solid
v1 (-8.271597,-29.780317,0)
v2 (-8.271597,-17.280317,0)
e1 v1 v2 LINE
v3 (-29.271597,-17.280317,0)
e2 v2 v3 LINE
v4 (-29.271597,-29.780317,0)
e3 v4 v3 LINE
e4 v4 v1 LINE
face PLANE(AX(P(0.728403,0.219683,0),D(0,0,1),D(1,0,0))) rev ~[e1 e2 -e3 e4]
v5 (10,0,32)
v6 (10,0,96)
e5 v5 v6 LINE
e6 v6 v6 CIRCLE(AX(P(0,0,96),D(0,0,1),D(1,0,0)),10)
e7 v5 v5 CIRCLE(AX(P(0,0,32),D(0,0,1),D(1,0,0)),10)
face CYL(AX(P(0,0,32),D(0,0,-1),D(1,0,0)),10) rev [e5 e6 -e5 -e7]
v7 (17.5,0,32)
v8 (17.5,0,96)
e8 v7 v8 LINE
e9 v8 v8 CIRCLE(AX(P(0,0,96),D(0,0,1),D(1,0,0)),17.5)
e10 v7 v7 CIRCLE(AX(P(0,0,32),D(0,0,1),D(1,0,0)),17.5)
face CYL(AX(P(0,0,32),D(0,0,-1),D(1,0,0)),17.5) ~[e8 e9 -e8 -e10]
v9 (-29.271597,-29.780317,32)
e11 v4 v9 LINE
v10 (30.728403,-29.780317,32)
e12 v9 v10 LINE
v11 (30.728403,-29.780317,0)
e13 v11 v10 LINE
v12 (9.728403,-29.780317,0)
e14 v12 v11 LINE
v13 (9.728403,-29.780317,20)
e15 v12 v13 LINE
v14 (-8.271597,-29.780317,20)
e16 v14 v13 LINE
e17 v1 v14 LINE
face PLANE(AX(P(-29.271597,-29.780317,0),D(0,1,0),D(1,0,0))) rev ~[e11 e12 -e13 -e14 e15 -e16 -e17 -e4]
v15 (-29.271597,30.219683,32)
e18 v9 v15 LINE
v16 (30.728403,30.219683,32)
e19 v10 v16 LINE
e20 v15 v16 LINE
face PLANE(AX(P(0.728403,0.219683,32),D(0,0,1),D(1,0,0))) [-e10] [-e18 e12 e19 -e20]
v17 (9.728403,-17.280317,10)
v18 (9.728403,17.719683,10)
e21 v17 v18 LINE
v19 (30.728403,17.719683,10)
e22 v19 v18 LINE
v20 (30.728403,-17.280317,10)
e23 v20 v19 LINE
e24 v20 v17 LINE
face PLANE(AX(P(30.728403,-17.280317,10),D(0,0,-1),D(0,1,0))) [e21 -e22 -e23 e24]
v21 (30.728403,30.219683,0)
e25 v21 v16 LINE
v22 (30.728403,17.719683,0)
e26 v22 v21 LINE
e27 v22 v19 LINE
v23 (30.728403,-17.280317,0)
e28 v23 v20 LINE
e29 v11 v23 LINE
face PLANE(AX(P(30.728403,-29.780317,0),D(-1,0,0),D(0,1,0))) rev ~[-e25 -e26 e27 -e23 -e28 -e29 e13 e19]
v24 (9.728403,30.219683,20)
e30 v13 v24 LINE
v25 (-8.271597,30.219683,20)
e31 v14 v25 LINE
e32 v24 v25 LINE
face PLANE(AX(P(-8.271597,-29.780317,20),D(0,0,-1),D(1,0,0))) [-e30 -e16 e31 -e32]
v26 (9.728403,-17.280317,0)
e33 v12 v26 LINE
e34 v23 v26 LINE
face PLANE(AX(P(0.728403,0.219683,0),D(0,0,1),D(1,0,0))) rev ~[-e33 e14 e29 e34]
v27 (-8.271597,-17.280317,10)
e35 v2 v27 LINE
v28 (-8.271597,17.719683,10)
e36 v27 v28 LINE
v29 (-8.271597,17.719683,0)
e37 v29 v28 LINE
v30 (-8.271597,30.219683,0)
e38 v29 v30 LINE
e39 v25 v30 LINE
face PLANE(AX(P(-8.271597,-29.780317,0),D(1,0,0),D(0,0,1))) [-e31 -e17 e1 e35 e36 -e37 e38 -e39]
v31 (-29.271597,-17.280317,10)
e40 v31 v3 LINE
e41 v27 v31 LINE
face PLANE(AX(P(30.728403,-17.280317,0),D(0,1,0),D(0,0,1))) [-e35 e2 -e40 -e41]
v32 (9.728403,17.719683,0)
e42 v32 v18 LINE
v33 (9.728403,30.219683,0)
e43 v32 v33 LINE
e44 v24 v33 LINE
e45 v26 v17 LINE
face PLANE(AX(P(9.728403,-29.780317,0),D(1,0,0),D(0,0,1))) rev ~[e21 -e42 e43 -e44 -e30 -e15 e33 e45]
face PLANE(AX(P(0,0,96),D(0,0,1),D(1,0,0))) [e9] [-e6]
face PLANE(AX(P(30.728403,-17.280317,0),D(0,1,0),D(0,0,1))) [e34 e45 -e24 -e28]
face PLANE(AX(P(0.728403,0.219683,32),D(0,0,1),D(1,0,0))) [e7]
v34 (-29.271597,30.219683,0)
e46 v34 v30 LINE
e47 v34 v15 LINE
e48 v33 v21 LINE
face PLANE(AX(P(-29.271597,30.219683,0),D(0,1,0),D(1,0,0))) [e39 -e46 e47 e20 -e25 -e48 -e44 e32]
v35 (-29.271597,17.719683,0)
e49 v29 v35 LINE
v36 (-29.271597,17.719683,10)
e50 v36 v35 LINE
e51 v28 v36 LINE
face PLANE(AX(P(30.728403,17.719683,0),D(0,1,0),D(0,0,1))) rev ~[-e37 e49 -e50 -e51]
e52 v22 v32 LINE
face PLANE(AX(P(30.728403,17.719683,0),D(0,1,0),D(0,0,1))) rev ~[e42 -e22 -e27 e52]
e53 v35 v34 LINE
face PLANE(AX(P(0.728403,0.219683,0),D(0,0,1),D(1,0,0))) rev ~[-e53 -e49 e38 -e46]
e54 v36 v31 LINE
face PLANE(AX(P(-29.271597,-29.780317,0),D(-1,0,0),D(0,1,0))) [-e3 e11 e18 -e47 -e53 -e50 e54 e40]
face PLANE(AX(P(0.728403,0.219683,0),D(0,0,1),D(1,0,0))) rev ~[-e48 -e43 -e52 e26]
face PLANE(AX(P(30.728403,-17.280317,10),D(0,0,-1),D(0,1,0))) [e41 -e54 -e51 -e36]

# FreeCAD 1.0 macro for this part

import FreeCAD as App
import Part
import Sketcher
Q = App.Units.Quantity


def add_polygon(sketch, points):
    """Adds a closed chain of lines whose ends are joined by coincident constraints."""
    first, n = sketch.GeometryCount, len(points)
    for a, b in zip(points, points[1:] + points[:1]):
        sketch.addGeometry(Part.LineSegment(App.Vector(*a, 0), App.Vector(*b, 0)), False)
    for i in range(n):
        sketch.addConstraint(Sketcher.Constraint("Coincident", first + i, 2, first + (i + 1) % n, 1))

doc = App.newDocument("Part")
body = doc.addObject("PartDesign::Body", "Body")

# Sketch on XY plane
sketch1 = doc.addObject("Sketcher::SketchObject", "Sketch")
body.addObject(sketch1)
sketch1.AttachmentSupport = (doc.XY_Plane, [""])
sketch1.MapMode = "FlatFace"
add_polygon(sketch1, [(-29.271597, 30.219683), (-29.271597, -29.780317), (30.728403, -29.780317), (30.728403, 30.219683)])  # lines 0-3
sketch1.addConstraint(Sketcher.Constraint("Vertical", 0))
sketch1.addConstraint(Sketcher.Constraint("Horizontal", 1))
sketch1.addConstraint(Sketcher.Constraint("Vertical", 2))
sketch1.addConstraint(Sketcher.Constraint("Horizontal", 3))
sketch1.addConstraint(Sketcher.Constraint("Equal", 3, 0))
sketch1.addConstraint(Sketcher.Constraint("DistanceX", 1, 1, 1, 2, Q("60 mm")))
sketch1.addConstraint(Sketcher.Constraint("DistanceX", 0, 2, -1, 1, Q("29.271597 mm")))
sketch1.addConstraint(Sketcher.Constraint("DistanceY", 0, 2, -1, 1, Q("29.780317 mm")))
pad1 = doc.addObject("PartDesign::Pad", "Pad")
body.addObject(pad1)
pad1.Profile = sketch1
pad1.Length = 32

# Sketch on XZ plane
sketch2 = doc.addObject("Sketcher::SketchObject", "Sketch001")
body.addObject(sketch2)
sketch2.AttachmentSupport = (doc.XZ_Plane, [""])
sketch2.MapMode = "FlatFace"
sketch2.AttachmentOffset = App.Placement(App.Vector(0, 0, 29.780317), App.Rotation())
add_polygon(sketch2, [(-8.271597, 20), (-8.271597, 0), (9.728403, 0), (9.728403, 20)])  # lines 0-3
sketch2.addConstraint(Sketcher.Constraint("Vertical", 0))
sketch2.addConstraint(Sketcher.Constraint("Horizontal", 1))
sketch2.addConstraint(Sketcher.Constraint("Vertical", 2))
sketch2.addConstraint(Sketcher.Constraint("Horizontal", 3))
sketch2.addConstraint(Sketcher.Constraint("PointOnObject", 0, 2, -1))
sketch2.addConstraint(Sketcher.Constraint("DistanceX", 1, 1, 1, 2, Q("18 mm")))
sketch2.addConstraint(Sketcher.Constraint("DistanceY", 0, 2, 0, 1, Q("20 mm")))
sketch2.addConstraint(Sketcher.Constraint("DistanceX", 0, 2, -1, 1, Q("8.271597 mm")))
pocket1 = doc.addObject("PartDesign::Pocket", "Pocket")
body.addObject(pocket1)
pocket1.Profile = sketch2
pocket1.Type = "ThroughAll"

# Sketch on YZ plane
sketch3 = doc.addObject("Sketcher::SketchObject", "Sketch002")
body.addObject(sketch3)
sketch3.AttachmentSupport = (doc.YZ_Plane, [""])
sketch3.MapMode = "FlatFace"
sketch3.AttachmentOffset = App.Placement(App.Vector(0, 0, 30.728403), App.Rotation())
add_polygon(sketch3, [(-17.280317, 10), (-17.280317, 0), (17.719683, 0), (17.719683, 10)])  # lines 0-3
sketch3.addConstraint(Sketcher.Constraint("Vertical", 0))
sketch3.addConstraint(Sketcher.Constraint("Horizontal", 1))
sketch3.addConstraint(Sketcher.Constraint("Vertical", 2))
sketch3.addConstraint(Sketcher.Constraint("Horizontal", 3))
sketch3.addConstraint(Sketcher.Constraint("PointOnObject", 0, 2, -1))
sketch3.addConstraint(Sketcher.Constraint("DistanceX", 1, 1, 1, 2, Q("35 mm")))
sketch3.addConstraint(Sketcher.Constraint("DistanceY", 0, 2, 0, 1, Q("10 mm")))
sketch3.addConstraint(Sketcher.Constraint("DistanceX", 0, 2, -1, 1, Q("17.280317 mm")))
pocket2 = doc.addObject("PartDesign::Pocket", "Pocket001")
body.addObject(pocket2)
pocket2.Profile = sketch3
pocket2.Type = "ThroughAll"

# Sketch on XY plane
sketch4 = doc.addObject("Sketcher::SketchObject", "Sketch003")
body.addObject(sketch4)
sketch4.AttachmentSupport = (doc.XY_Plane, [""])
sketch4.MapMode = "FlatFace"
sketch4.AttachmentOffset = App.Placement(App.Vector(0, 0, 32), App.Rotation())
sketch4.addGeometry(Part.Circle(App.Vector(0, 0, 0), App.Vector(0, 0, 1), 17.5), False)
sketch4.addGeometry(Part.Circle(App.Vector(0, 0, 0), App.Vector(0, 0, 1), 10), False)
sketch4.addConstraint(Sketcher.Constraint("Coincident", 0, 3, -1, 1))
sketch4.addConstraint(Sketcher.Constraint("Coincident", 1, 3, -1, 1))
sketch4.addConstraint(Sketcher.Constraint("Diameter", 0, Q("35 mm")))
sketch4.addConstraint(Sketcher.Constraint("Diameter", 1, Q("20 mm")))
pad2 = doc.addObject("PartDesign::Pad", "Pad001")
body.addObject(pad2)
pad2.Profile = sketch4
pad2.Length = 64

doc.recompute()
